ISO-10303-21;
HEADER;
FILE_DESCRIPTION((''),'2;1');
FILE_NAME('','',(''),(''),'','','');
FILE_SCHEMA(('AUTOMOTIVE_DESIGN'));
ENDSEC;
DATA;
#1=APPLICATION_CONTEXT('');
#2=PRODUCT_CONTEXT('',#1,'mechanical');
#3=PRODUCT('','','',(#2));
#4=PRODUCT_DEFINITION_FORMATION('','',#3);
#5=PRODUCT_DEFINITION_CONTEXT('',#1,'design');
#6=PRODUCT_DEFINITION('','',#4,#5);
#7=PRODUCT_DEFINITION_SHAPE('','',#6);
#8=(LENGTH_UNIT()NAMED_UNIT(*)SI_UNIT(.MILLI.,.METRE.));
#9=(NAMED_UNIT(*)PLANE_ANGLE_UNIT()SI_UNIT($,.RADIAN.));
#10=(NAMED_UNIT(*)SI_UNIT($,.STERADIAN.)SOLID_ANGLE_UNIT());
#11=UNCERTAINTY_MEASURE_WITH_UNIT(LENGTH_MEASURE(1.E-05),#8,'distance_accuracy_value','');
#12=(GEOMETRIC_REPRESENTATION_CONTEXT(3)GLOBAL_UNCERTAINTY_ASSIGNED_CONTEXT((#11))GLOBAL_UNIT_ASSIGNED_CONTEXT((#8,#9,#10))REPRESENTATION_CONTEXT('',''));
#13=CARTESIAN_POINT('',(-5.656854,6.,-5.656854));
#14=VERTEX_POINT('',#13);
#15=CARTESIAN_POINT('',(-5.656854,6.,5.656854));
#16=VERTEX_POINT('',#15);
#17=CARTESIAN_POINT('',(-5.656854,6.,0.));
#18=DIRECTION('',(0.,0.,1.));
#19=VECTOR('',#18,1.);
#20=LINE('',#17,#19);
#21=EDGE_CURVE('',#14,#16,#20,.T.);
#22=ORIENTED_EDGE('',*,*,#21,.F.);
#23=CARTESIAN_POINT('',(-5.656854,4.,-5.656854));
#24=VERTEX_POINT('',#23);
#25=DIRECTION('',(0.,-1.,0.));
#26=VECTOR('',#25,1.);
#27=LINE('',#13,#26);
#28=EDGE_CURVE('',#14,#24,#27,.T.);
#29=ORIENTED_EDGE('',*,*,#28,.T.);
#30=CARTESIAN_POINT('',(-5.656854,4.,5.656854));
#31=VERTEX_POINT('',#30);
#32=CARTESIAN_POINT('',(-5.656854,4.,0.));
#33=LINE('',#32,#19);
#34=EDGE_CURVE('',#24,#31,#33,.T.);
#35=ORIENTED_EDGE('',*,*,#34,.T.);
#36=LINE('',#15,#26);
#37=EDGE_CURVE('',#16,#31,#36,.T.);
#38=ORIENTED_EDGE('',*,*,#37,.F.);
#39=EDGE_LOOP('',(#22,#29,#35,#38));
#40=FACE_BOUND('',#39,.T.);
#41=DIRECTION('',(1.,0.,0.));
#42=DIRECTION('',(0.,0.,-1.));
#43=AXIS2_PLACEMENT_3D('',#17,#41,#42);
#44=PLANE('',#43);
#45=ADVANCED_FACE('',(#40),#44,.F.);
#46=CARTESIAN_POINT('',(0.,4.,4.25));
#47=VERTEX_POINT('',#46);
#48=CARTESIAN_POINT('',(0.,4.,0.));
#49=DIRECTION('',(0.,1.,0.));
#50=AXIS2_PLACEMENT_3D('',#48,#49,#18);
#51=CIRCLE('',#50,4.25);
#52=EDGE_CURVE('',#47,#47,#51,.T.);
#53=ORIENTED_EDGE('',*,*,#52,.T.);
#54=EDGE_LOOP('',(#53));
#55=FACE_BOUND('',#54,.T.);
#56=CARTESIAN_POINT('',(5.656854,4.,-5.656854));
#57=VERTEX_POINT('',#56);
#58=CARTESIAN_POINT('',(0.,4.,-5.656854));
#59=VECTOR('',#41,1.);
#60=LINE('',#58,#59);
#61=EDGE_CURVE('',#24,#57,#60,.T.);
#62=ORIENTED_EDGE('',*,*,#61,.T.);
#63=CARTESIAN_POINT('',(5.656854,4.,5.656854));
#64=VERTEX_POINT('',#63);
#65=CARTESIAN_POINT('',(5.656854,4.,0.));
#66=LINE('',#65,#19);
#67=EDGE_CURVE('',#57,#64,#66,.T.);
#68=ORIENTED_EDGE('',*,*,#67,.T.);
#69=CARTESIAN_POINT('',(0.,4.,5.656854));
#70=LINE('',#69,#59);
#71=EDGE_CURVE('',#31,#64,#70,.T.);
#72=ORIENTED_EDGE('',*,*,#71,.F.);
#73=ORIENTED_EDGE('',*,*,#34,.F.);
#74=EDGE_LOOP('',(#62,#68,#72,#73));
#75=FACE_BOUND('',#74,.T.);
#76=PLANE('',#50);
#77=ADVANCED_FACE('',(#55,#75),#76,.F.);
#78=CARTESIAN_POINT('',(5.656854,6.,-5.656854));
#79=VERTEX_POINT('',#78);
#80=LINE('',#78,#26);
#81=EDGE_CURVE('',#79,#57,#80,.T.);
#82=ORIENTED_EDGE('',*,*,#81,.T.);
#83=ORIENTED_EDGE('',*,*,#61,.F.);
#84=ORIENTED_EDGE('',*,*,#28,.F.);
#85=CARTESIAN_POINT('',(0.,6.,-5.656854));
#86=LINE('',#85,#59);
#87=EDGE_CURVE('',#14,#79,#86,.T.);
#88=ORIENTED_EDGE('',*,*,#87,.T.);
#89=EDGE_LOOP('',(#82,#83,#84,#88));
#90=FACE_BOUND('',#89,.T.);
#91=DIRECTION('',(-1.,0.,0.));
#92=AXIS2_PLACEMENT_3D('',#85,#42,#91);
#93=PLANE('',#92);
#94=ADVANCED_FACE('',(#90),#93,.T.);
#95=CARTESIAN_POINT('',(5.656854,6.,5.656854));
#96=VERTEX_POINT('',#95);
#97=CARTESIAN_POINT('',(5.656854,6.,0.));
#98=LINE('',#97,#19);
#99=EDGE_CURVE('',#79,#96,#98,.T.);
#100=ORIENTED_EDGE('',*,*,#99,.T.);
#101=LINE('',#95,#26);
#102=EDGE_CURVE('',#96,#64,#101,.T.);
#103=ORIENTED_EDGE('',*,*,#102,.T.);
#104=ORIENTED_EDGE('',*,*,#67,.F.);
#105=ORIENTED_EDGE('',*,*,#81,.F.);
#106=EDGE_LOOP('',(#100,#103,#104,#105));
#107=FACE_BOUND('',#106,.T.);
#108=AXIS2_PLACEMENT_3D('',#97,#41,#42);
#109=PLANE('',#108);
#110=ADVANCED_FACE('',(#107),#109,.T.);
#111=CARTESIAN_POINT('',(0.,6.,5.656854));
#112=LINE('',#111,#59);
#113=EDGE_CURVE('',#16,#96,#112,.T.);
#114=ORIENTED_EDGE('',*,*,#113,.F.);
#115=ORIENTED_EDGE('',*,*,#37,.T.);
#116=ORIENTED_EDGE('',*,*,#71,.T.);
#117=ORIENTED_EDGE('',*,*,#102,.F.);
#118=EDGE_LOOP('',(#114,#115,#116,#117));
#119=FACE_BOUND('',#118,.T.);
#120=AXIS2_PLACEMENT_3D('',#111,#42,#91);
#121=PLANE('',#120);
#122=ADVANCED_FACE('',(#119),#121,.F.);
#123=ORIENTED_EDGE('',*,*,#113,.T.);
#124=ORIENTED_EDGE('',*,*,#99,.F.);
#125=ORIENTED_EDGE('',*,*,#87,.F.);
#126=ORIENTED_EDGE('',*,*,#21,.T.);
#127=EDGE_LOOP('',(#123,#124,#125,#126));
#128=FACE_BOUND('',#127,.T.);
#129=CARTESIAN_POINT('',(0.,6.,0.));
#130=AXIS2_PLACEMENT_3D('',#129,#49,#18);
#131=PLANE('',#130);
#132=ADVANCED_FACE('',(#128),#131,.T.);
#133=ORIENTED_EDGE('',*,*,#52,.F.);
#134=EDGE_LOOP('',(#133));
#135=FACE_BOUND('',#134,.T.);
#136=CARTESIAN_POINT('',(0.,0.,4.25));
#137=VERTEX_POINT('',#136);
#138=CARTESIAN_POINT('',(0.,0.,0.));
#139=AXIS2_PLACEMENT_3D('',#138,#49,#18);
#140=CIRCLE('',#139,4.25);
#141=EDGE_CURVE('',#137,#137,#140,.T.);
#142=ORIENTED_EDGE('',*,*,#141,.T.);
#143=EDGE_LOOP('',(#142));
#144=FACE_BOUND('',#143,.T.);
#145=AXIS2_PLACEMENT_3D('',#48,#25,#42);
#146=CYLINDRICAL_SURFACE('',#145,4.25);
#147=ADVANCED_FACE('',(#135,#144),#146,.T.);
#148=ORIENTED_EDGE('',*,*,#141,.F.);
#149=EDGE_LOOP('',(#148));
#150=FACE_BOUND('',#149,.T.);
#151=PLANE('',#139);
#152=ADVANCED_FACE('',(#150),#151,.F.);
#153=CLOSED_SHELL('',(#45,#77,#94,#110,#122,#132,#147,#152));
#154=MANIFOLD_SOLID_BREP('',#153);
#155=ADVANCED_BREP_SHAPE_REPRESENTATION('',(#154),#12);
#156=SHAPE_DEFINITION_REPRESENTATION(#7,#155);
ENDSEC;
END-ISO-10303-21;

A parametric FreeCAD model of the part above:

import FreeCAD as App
import Part
import Sketcher

V = App.Vector

doc = App.newDocument("Part")
params = doc.addObject("Spreadsheet::Sheet", "Params")
for row, (alias, value) in enumerate([
    ("sketch1_diameter", "8.5 mm"),
    ("pad1_length", "4 mm"),
    ("pad2_length", "2 mm"),
], start=1):
    params.set(f"A{row}", alias)
    params.set(f"B{row}", "=" + value)
    params.setAlias(f"B{row}", alias)

body = doc.addObject("PartDesign::Body", "Body")

# Sketch on XZ plane
sketch1 = body.newObject("Sketcher::SketchObject", "Sketch")
sketch1.AttachmentSupport = (doc.getObject("XZ_Plane"), [""])
sketch1.MapMode = "FlatFace"
sketch1.addGeometry(Part.Circle(V(0, 0, 0), V(0, 0, 1), 4.2), False)
sketch1.addConstraint([
    Sketcher.Constraint("Coincident", 0, 3, -1, 1),
    Sketcher.Constraint("Diameter", 0, 8.5),
])
sketch1.setExpression("Constraints[1]", "Params.sketch1_diameter")
pad1 = body.newObject("PartDesign::Pad", "Pad")
pad1.Profile = sketch1
pad1.setExpression("Length", "Params.pad1_length")
pad1.Reversed = True

# Sketch on XZ plane
sketch2 = body.newObject("Sketcher::SketchObject", "Sketch001")
sketch2.AttachmentSupport = (doc.getObject("XZ_Plane"), [""])
sketch2.MapMode = "FlatFace"
sketch2.AttachmentOffset = App.Placement(V(0, 0, -4), App.Rotation())
sketch2.addGeometry([
    Part.LineSegment(V(-6, -6, 0), V(-6, 6, 0)),
    Part.LineSegment(V(-6, 6, 0), V(6, 6, 0)),
    Part.LineSegment(V(6, 6, 0), V(6, -6, 0)),
    Part.LineSegment(V(6, -6, 0), V(-6, -6, 0)),
], False)
sketch2.addConstraint([
    Sketcher.Constraint("Coincident", 0, 2, 1, 1),
    Sketcher.Constraint("Coincident", 1, 2, 2, 1),
    Sketcher.Constraint("Coincident", 2, 2, 3, 1),
    Sketcher.Constraint("Coincident", 3, 2, 0, 1),
    Sketcher.Constraint("Vertical", 0),
    Sketcher.Constraint("Horizontal", 1),
    Sketcher.Constraint("Vertical", 2),
    Sketcher.Constraint("Horizontal", 3),
    Sketcher.Constraint("Symmetric", 0, 2, 2, 2, -1, 1),
    Sketcher.Constraint("Equal", 3, 0),
    Sketcher.Constraint("DistanceX", 1, 1, 1, 2, 11.313708),
])
pad2 = body.newObject("PartDesign::Pad", "Pad001")
pad2.Profile = sketch2
pad2.setExpression("Length", "Params.pad2_length")
pad2.Reversed = True

doc.recompute()
